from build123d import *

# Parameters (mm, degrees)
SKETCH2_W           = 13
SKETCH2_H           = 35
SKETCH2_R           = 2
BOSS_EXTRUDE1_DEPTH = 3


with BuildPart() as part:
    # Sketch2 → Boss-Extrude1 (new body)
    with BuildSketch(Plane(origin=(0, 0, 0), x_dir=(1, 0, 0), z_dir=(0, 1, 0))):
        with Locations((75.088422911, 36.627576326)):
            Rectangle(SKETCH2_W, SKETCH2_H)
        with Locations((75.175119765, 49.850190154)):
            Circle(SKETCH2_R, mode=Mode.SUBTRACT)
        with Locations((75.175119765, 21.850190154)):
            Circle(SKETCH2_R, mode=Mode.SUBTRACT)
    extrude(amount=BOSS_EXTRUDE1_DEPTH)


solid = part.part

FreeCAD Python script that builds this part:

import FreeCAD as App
import Part
import Sketcher
Q = App.Units.Quantity

doc = App.newDocument("Part")
body = doc.addObject("PartDesign::Body", "Body")

# Sketch on XZ plane
sketch1 = doc.addObject("Sketcher::SketchObject", "Sketch")
body.addObject(sketch1)
sketch1.AttachmentSupport = (doc.XZ_Plane, [""])
sketch1.MapMode = "FlatFace"
sketch1.addGeometry([
    Part.LineSegment(App.Vector(68.6, -54.1, 0), App.Vector(68.6, -19.1, 0)),  # 0
    Part.LineSegment(App.Vector(68.6, -19.1, 0), App.Vector(81.6, -19.1, 0)),  # 1
    Part.LineSegment(App.Vector(81.6, -19.1, 0), App.Vector(81.6, -54.1, 0)),  # 2
    Part.LineSegment(App.Vector(81.6, -54.1, 0), App.Vector(68.6, -54.1, 0)),  # 3
    Part.Circle(App.Vector(75.2, -21.9, 0), App.Vector(0, 0, 1), 2),  # 4
    Part.Circle(App.Vector(75.2, -49.9, 0), App.Vector(0, 0, 1), 2),  # 5
], False)
sketch1.addConstraint([
    Sketcher.Constraint("Coincident", 0, 2, 1, 1),
    Sketcher.Constraint("Coincident", 1, 2, 2, 1),
    Sketcher.Constraint("Coincident", 2, 2, 3, 1),
    Sketcher.Constraint("Coincident", 3, 2, 0, 1),
    Sketcher.Constraint("Vertical", 0),
    Sketcher.Constraint("Horizontal", 1),
    Sketcher.Constraint("Vertical", 2),
    Sketcher.Constraint("Horizontal", 3),
    Sketcher.Constraint("Equal", 4, 5),
    Sketcher.Constraint("Vertical", 4, 3, 5, 3),
    Sketcher.Constraint("Diameter", 4, Q("4 mm")),
    Sketcher.Constraint("DistanceX", 1, 1, 1, 2, Q("13 mm")),
    Sketcher.Constraint("DistanceY", 0, 1, 0, 2, Q("35 mm")),
    Sketcher.Constraint("DistanceY", 5, 3, 4, 3, Q("28 mm")),
    Sketcher.Constraint("DistanceX", -1, 1, 4, 3, Q("75.17512 mm")),
    Sketcher.Constraint("DistanceY", 4, 3, -1, 1, Q("21.85019 mm")),
    Sketcher.Constraint("DistanceX", -1, 1, 0, 2, Q("68.588423 mm")),
    Sketcher.Constraint("DistanceY", 0, 2, -1, 1, Q("19.127576 mm")),
])
pad1 = doc.addObject("PartDesign::Pad", "Pad")
body.addObject(pad1)
pad1.Profile = sketch1
pad1.Length = 3
pad1.Reversed = True

doc.recompute()
